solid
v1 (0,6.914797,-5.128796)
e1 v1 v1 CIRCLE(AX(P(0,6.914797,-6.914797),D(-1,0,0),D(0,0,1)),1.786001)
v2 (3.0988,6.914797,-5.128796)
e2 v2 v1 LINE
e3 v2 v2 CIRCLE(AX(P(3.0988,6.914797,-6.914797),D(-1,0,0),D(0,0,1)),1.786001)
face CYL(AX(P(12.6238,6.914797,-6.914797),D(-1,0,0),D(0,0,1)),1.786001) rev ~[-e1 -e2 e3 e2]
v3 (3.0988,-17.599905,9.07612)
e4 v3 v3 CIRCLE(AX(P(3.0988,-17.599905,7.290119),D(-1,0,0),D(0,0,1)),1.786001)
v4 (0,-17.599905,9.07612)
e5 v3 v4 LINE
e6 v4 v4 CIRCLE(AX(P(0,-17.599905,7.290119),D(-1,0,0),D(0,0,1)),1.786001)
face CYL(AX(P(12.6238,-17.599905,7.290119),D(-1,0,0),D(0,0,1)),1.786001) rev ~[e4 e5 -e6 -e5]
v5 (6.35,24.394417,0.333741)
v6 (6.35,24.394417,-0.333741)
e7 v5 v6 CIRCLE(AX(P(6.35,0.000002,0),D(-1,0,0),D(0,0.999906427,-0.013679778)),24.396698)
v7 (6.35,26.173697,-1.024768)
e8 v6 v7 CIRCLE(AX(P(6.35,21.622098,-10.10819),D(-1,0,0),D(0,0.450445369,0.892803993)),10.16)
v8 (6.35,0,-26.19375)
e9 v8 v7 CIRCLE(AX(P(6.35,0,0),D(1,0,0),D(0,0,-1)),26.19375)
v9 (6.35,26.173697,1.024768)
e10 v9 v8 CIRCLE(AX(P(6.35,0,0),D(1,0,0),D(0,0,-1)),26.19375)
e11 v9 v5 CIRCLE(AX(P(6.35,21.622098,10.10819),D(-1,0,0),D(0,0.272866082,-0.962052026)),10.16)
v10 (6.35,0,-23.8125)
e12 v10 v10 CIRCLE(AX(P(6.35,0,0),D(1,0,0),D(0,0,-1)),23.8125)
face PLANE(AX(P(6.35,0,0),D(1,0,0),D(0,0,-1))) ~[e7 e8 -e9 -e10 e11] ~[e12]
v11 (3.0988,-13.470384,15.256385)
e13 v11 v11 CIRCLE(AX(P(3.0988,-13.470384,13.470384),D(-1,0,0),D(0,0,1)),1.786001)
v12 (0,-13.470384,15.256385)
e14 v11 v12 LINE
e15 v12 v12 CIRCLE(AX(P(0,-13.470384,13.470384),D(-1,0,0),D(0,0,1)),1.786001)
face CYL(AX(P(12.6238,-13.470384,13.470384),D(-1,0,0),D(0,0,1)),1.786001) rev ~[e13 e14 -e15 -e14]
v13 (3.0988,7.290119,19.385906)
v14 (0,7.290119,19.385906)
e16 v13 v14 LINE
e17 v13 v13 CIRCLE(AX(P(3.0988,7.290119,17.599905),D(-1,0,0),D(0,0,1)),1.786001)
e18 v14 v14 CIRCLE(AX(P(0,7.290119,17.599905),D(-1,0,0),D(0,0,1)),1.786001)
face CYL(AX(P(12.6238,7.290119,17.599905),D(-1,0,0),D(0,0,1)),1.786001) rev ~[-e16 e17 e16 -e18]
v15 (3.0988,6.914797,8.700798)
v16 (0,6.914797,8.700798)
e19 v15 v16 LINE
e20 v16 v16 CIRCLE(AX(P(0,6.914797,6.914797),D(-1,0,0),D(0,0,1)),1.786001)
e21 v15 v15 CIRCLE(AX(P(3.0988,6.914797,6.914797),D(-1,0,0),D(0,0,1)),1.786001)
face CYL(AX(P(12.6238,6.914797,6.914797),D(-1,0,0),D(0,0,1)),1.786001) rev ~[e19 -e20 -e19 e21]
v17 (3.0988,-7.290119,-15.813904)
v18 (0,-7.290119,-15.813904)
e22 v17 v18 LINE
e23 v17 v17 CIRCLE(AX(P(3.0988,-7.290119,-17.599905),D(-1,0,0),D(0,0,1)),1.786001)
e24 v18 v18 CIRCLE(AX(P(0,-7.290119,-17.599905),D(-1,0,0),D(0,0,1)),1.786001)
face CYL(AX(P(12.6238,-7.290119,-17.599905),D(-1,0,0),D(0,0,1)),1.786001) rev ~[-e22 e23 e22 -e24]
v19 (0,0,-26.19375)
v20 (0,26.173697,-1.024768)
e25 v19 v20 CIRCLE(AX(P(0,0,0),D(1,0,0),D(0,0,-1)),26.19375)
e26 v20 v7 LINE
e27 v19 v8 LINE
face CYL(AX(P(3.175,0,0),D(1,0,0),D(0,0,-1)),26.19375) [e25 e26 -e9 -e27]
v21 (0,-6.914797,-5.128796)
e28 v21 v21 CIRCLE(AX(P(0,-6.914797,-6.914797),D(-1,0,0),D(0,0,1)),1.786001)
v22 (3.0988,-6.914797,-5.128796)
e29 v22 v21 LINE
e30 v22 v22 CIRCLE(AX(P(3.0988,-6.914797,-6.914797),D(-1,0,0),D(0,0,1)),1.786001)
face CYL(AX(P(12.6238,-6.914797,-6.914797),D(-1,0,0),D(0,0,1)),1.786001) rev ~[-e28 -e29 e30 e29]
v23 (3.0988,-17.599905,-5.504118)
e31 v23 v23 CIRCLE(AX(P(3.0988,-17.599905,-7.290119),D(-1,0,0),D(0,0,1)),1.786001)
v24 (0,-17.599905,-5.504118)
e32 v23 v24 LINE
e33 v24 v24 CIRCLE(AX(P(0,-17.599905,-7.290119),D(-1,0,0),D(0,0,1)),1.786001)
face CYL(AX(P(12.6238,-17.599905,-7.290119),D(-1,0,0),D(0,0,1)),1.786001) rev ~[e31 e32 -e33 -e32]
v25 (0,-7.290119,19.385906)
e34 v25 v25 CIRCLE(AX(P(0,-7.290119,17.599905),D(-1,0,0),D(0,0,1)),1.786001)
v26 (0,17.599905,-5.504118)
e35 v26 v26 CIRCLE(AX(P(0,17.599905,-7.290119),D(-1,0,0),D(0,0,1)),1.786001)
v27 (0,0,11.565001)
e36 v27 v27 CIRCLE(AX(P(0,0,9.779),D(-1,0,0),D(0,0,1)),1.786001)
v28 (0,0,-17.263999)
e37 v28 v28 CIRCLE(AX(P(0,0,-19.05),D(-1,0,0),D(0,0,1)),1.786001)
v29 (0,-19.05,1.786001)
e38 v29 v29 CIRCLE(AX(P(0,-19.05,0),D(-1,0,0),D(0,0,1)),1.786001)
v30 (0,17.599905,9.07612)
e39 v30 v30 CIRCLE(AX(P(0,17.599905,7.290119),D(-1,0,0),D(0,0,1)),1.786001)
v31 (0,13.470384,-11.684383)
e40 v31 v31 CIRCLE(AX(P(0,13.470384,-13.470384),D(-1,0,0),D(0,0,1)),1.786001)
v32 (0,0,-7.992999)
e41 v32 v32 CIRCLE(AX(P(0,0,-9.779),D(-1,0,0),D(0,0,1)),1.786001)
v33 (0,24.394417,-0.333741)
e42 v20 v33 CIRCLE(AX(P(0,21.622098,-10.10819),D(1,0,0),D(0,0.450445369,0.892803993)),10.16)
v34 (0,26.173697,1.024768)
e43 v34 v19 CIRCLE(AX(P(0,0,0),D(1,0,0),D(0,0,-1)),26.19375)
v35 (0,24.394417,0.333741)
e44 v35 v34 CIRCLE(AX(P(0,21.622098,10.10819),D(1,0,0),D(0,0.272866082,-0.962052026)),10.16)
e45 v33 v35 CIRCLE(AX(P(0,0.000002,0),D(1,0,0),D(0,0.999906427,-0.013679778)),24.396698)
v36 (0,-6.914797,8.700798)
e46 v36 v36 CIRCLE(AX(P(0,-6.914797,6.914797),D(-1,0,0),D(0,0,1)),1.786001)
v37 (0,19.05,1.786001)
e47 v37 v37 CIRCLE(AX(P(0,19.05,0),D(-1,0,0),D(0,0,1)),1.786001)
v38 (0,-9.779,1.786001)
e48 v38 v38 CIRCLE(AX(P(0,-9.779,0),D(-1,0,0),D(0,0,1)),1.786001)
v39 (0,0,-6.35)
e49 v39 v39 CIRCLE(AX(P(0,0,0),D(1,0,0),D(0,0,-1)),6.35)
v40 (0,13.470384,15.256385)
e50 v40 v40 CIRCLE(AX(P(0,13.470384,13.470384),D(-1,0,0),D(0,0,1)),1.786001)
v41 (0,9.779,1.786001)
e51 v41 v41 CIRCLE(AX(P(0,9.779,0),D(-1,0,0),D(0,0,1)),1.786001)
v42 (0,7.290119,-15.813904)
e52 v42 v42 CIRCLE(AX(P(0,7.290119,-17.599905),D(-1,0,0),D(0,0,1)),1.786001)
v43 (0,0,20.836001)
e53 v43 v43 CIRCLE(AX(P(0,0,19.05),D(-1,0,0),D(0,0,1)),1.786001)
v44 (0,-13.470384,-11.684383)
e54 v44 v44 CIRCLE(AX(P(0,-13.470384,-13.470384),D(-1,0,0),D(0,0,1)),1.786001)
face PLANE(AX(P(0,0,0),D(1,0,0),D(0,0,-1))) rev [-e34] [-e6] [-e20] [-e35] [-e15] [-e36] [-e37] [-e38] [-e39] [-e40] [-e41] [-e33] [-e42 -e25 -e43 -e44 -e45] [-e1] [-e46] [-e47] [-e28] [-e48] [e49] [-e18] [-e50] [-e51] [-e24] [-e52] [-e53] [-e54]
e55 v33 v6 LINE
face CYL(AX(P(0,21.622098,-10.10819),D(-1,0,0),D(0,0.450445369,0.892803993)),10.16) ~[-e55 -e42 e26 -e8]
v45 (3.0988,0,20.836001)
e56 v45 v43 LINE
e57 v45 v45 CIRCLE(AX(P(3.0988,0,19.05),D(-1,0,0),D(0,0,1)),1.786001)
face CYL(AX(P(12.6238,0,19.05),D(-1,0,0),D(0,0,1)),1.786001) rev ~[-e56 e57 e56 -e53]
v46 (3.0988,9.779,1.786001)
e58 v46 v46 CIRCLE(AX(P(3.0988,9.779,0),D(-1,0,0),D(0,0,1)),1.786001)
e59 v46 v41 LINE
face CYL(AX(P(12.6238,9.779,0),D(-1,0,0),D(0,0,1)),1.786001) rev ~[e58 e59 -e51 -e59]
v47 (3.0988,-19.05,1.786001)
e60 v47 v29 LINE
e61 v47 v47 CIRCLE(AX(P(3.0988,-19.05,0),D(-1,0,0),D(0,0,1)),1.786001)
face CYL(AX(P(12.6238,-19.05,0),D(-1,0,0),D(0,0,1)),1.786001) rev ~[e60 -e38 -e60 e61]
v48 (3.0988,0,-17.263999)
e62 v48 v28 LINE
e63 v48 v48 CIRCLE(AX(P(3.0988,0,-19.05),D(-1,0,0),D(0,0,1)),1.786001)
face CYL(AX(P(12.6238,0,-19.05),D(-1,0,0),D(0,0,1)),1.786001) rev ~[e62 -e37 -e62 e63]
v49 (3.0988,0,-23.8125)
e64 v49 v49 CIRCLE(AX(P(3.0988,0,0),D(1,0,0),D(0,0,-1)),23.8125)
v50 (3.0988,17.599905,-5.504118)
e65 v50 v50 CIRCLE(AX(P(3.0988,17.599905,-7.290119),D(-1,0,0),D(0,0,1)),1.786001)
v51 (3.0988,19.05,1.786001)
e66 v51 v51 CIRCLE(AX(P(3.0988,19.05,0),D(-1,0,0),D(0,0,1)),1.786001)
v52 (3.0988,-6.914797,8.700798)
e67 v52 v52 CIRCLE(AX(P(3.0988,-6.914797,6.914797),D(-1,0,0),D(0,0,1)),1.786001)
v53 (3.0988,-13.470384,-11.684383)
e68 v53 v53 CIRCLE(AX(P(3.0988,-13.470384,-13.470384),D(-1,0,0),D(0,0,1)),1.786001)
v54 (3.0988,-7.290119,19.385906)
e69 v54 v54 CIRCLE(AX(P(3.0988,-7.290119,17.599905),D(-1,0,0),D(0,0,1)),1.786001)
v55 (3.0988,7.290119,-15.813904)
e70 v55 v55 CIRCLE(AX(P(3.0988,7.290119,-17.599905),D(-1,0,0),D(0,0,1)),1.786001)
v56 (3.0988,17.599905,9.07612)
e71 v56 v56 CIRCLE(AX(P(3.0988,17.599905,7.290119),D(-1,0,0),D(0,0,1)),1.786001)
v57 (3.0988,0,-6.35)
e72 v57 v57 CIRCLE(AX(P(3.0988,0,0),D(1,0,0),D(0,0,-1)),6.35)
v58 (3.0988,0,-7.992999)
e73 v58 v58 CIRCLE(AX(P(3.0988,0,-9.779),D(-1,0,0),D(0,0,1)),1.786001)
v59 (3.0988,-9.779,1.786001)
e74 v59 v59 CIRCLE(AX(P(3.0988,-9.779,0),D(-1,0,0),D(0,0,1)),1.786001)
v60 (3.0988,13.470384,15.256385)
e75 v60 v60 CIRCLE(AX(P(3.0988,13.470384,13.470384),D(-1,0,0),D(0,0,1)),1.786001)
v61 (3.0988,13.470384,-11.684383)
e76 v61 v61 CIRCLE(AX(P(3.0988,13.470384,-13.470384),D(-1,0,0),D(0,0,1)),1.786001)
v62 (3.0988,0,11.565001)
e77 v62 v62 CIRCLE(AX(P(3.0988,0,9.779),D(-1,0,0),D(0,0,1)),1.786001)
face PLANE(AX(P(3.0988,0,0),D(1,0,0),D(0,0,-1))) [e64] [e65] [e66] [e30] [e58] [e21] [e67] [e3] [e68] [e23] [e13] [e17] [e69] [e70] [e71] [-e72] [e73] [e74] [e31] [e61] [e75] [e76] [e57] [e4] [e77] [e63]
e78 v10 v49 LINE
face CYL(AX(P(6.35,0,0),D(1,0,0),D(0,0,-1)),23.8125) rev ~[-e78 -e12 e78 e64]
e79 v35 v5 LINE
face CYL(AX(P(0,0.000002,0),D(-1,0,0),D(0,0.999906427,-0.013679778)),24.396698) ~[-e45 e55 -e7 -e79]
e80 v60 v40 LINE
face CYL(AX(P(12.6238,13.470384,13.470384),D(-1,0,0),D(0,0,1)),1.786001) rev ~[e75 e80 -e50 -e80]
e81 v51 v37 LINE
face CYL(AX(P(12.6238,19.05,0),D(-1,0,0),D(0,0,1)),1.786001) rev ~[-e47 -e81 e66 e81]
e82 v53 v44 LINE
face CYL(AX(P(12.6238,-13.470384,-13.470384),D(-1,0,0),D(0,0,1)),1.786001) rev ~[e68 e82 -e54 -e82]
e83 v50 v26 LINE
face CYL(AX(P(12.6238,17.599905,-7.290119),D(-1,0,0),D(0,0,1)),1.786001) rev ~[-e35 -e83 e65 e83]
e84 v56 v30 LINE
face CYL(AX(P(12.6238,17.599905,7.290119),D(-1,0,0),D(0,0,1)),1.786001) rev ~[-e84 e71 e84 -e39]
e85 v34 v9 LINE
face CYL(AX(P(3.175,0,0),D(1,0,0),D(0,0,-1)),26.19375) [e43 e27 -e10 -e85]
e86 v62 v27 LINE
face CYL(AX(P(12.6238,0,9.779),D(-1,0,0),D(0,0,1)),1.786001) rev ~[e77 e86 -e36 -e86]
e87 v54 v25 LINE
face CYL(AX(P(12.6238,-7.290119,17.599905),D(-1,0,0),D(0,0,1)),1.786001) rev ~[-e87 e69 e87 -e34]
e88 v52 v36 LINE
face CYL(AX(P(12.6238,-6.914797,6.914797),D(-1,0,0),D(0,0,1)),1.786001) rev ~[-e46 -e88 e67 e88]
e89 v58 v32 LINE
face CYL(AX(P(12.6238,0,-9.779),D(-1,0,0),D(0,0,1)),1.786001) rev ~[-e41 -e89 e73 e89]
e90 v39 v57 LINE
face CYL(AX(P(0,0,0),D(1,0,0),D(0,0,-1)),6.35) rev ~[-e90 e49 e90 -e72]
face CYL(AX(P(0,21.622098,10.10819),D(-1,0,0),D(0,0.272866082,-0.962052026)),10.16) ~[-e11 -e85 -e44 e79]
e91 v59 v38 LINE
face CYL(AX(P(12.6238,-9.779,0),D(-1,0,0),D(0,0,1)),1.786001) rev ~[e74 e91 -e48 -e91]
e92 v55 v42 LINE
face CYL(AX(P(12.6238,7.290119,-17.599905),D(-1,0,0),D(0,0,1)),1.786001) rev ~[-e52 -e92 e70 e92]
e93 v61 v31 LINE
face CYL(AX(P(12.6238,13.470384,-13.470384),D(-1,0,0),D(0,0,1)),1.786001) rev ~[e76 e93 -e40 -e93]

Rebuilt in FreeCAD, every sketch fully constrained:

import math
import FreeCAD as App
import Part
import Sketcher
Q = App.Units.Quantity


def add_polygon(sketch, points):
    """Adds a closed chain of lines whose ends are joined by coincident constraints."""
    first, n = sketch.GeometryCount, len(points)
    for a, b in zip(points, points[1:] + points[:1]):
        sketch.addGeometry(Part.LineSegment(App.Vector(*a, 0), App.Vector(*b, 0)), False)
    for i in range(n):
        sketch.addConstraint(Sketcher.Constraint("Coincident", first + i, 2, first + (i + 1) % n, 1))

doc = App.newDocument("Part")
params = doc.addObject("Spreadsheet::Sheet", "Params")
for row, (alias, value) in enumerate([
    ("sketch1_width", "0.25 in"),
    ("sketch1_height", "1.03125 in"),
    ("revolution_angle", "360 deg"),
    ("sketch2_radius", "0.4 in"),
    ("sketch3_diameter", "0.5 in"),
    ("pocket2_length", "101.600102 mm"),
    ("sketch4_diameter", "1.875 in"),
    ("pocket3_length", "0.128 in"),
    ("hole_diameter", "3.572002 mm"),
    ("hole_depth", "0.375 in"),
], start=1):
    params.set(f"A{row}", alias)
    params.set(f"B{row}", "=" + value)
    params.setAlias(f"B{row}", alias)

body = doc.addObject("PartDesign::Body", "Body")

# Sketch on XZ plane
sketch1 = doc.addObject("Sketcher::SketchObject", "Sketch")
body.addObject(sketch1)
sketch1.AttachmentSupport = (doc.XZ_Plane, [""])
sketch1.MapMode = "FlatFace"
add_polygon(sketch1, [(0, -26), (0, 0), (6, 0), (6, -26)])  # lines 0-3
sketch1.addConstraint([
    Sketcher.Constraint("Vertical", 0),
    Sketcher.Constraint("Horizontal", 1),
    Sketcher.Constraint("Vertical", 2),
    Sketcher.Constraint("Horizontal", 3),
    Sketcher.Constraint("Coincident", 0, 2, -1, 1),
    Sketcher.Constraint("DistanceX", 1, 1, 1, 2, Q("0.25 in")),
    Sketcher.Constraint("DistanceY", 0, 1, 0, 2, Q("1.03125 in")),
])
sketch1.setExpression("Constraints[9]", "Params.sketch1_width")
sketch1.setExpression("Constraints[10]", "Params.sketch1_height")
revolution = doc.addObject("PartDesign::Revolution", "Revolution")
body.addObject(revolution)
revolution.Profile = sketch1
revolution.ReferenceAxis = (sketch1, ["H_Axis"])
revolution.setExpression("Angle", "Params.revolution_angle")

# Sketch on YZ plane
sketch2 = doc.addObject("Sketcher::SketchObject", "Sketch001")
body.addObject(sketch2)
sketch2.AttachmentSupport = (doc.YZ_Plane, [""])
sketch2.MapMode = "FlatFace"
sketch2.addGeometry([
    Part.ArcOfCircle(Part.Circle(App.Vector(0, 0, 0), App.Vector(0, 0, 1), 24.4), math.radians(-0.78), math.radians(0.78)),
    Part.ArcOfCircle(Part.Circle(App.Vector(21.6, -10.1, 0), App.Vector(0, 0, 1), 10.2), math.radians(63.23), math.radians(74.17)),
    Part.ArcOfCircle(Part.Circle(App.Vector(0, 0, 0), App.Vector(0, 0, 1), 26.2), math.radians(-2.27), math.radians(2.27)),
    Part.ArcOfCircle(Part.Circle(App.Vector(21.6, 10.1, 0), App.Vector(0, 0, 1), 10.2), math.radians(-74.17), math.radians(-63.23)),
], False)
sketch2.addConstraint([
    Sketcher.Constraint("Coincident", 0, 1, 1, 2),
    Sketcher.Constraint("Coincident", 1, 1, 2, 1),
    Sketcher.Constraint("Coincident", 2, 2, 3, 2),
    Sketcher.Constraint("Coincident", 3, 1, 0, 2),
    Sketcher.Constraint("Coincident", 0, 3, -1, 1),
    Sketcher.Constraint("Coincident", 2, 3, -1, 1),
    Sketcher.Constraint("Equal", 1, 3),
    Sketcher.Constraint("Symmetric", 1, 3, 3, 3, -1),
    Sketcher.Constraint("Radius", 1, Q("0.4 in")),
    Sketcher.Constraint("Radius", 0, Q("0.9604999 in")),
    Sketcher.Constraint("Radius", 2, Q("26.21915 mm")),
    Sketcher.Constraint("DistanceY", 1, 1, -1, 1, Q("1.037301 mm")),
    Sketcher.Constraint("DistanceY", 1, 3, -1, 1, Q("10.10819 mm")),
])
sketch2.setExpression("Constraints[8]", "Params.sketch2_radius")
pocket1 = doc.addObject("PartDesign::Pocket", "Pocket")
body.addObject(pocket1)
pocket1.Profile = sketch2
pocket1.Type = "ThroughAll"
pocket1.Reversed = True

# Sketch on YZ plane
sketch3 = doc.addObject("Sketcher::SketchObject", "Sketch002")
body.addObject(sketch3)
sketch3.AttachmentSupport = (doc.YZ_Plane, [""])
sketch3.MapMode = "FlatFace"
sketch3.addGeometry(Part.Circle(App.Vector(0, 0, 0), App.Vector(0, 0, 1), 6), False)
sketch3.addConstraint([
    Sketcher.Constraint("Coincident", 0, 3, -1, 1),
    Sketcher.Constraint("Diameter", 0, Q("0.5 in")),
])
sketch3.setExpression("Constraints[1]", "Params.sketch3_diameter")
pocket2 = doc.addObject("PartDesign::Pocket", "Pocket001")
body.addObject(pocket2)
pocket2.Profile = sketch3
pocket2.setExpression("Length", "Params.pocket2_length")
pocket2.Midplane = True

# Sketch on YZ plane
sketch4 = doc.addObject("Sketcher::SketchObject", "Sketch003")
body.addObject(sketch4)
sketch4.AttachmentSupport = (doc.YZ_Plane, [""])
sketch4.MapMode = "FlatFace"
sketch4.AttachmentOffset = App.Placement(App.Vector(0, 0, 0.25 * 25.4), App.Rotation())
sketch4.addGeometry(Part.Circle(App.Vector(0, 0, 0), App.Vector(0, 0, 1), 24), False)
sketch4.addConstraint([
    Sketcher.Constraint("Coincident", 0, 3, -1, 1),
    Sketcher.Constraint("Diameter", 0, Q("1.875 in")),
])
sketch4.setExpression("Constraints[1]", "Params.sketch4_diameter")
pocket3 = doc.addObject("PartDesign::Pocket", "Pocket002")
body.addObject(pocket3)
pocket3.Profile = sketch4
pocket3.setExpression("Length", "Params.pocket3_length")

# Sketch on YZ plane
sketch5 = doc.addObject("Sketcher::SketchObject", "Sketch004")
body.addObject(sketch5)
sketch5.AttachmentSupport = (doc.YZ_Plane, [""])
sketch5.MapMode = "FlatFace"
sketch5.AttachmentOffset = App.Placement(App.Vector(0, 0, 0.122 * 25.4), App.Rotation())
sketch5.addGeometry([
    Part.Circle(App.Vector(9.8, 0, 0), App.Vector(0, 0, 1), 1.8),  # 0
    Part.Circle(App.Vector(19.1, 0, 0), App.Vector(0, 0, 1), 1.8),  # 1
    Part.Circle(App.Vector(17.6, -7.3, 0), App.Vector(0, 0, 1), 1.8),  # 2
    Part.Circle(App.Vector(13.5, -13.5, 0), App.Vector(0, 0, 1), 1.8),  # 3
    Part.Circle(App.Vector(7.3, -17.6, 0), App.Vector(0, 0, 1), 1.8),  # 4
    Part.Circle(App.Vector(0, -19.1, 0), App.Vector(0, 0, 1), 1.8),  # 5
    Part.Circle(App.Vector(-7.3, -17.6, 0), App.Vector(0, 0, 1), 1.8),  # 6
    Part.Circle(App.Vector(-13.5, -13.5, 0), App.Vector(0, 0, 1), 1.8),  # 7
    Part.Circle(App.Vector(-17.6, -7.3, 0), App.Vector(0, 0, 1), 1.8),  # 8
    Part.Circle(App.Vector(-19.1, 0, 0), App.Vector(0, 0, 1), 1.8),  # 9
    Part.Circle(App.Vector(-17.6, 7.3, 0), App.Vector(0, 0, 1), 1.8),  # 10
    Part.Circle(App.Vector(-13.5, 13.5, 0), App.Vector(0, 0, 1), 1.8),  # 11
    Part.Circle(App.Vector(-7.3, 17.6, 0), App.Vector(0, 0, 1), 1.8),  # 12
    Part.Circle(App.Vector(0, 19.1, 0), App.Vector(0, 0, 1), 1.8),  # 13
    Part.Circle(App.Vector(7.3, 17.6, 0), App.Vector(0, 0, 1), 1.8),  # 14
    Part.Circle(App.Vector(13.5, 13.5, 0), App.Vector(0, 0, 1), 1.8),  # 15
    Part.Circle(App.Vector(17.6, 7.3, 0), App.Vector(0, 0, 1), 1.8),  # 16
    Part.Circle(App.Vector(6.9, -6.9, 0), App.Vector(0, 0, 1), 1.8),  # 17
    Part.Circle(App.Vector(0, -9.8, 0), App.Vector(0, 0, 1), 1.8),  # 18
    Part.Circle(App.Vector(-6.9, -6.9, 0), App.Vector(0, 0, 1), 1.8),  # 19
    Part.Circle(App.Vector(-9.8, 0, 0), App.Vector(0, 0, 1), 1.8),  # 20
    Part.Circle(App.Vector(-6.9, 6.9, 0), App.Vector(0, 0, 1), 1.8),  # 21
    Part.Circle(App.Vector(0, 9.8, 0), App.Vector(0, 0, 1), 1.8),  # 22
    Part.Circle(App.Vector(6.9, 6.9, 0), App.Vector(0, 0, 1), 1.8),  # 23
], False)
sketch5.addConstraint([
    Sketcher.Constraint("Equal", 0, 1),
    Sketcher.Constraint("Equal", 1, 2),
    Sketcher.Constraint("Equal", 2, 3),
    Sketcher.Constraint("Equal", 3, 4),
    Sketcher.Constraint("Equal", 4, 5),
    Sketcher.Constraint("Equal", 5, 6),
    Sketcher.Constraint("Equal", 6, 7),
    Sketcher.Constraint("Equal", 7, 8),
    Sketcher.Constraint("Equal", 8, 9),
    Sketcher.Constraint("Equal", 9, 10),
    Sketcher.Constraint("Equal", 10, 11),
    Sketcher.Constraint("Equal", 11, 12),
    Sketcher.Constraint("Equal", 12, 13),
    Sketcher.Constraint("Equal", 13, 14),
    Sketcher.Constraint("Equal", 14, 15),
    Sketcher.Constraint("Equal", 15, 16),
    Sketcher.Constraint("Equal", 16, 17),
    Sketcher.Constraint("Equal", 17, 18),
    Sketcher.Constraint("Equal", 18, 19),
    Sketcher.Constraint("Equal", 19, 20),
    Sketcher.Constraint("Equal", 20, 21),
    Sketcher.Constraint("Equal", 21, 22),
    Sketcher.Constraint("Equal", 22, 23),
    Sketcher.Constraint("Symmetric", 1, 3, 9, 3, -1, 1),
    Sketcher.Constraint("Symmetric", 2, 3, 10, 3, -1, 1),
    Sketcher.Constraint("Symmetric", 3, 3, 11, 3, -1, 1),
    Sketcher.Constraint("Symmetric", 4, 3, 12, 3, -1, 1),
    Sketcher.Constraint("Symmetric", 5, 3, 13, 3, -1, 1),
    Sketcher.Constraint("Symmetric", 6, 3, 14, 3, -1, 1),
    Sketcher.Constraint("Symmetric", 7, 3, 15, 3, -1, 1),
    Sketcher.Constraint("Symmetric", 8, 3, 16, 3, -1, 1),
    Sketcher.Constraint("Symmetric", 0, 3, 20, 3, -1, 1),
    Sketcher.Constraint("Symmetric", 17, 3, 21, 3, -1, 1),
    Sketcher.Constraint("Symmetric", 18, 3, 22, 3, -1, 1),
    Sketcher.Constraint("Symmetric", 19, 3, 23, 3, -1, 1),
    Sketcher.Constraint("Symmetric", 4, 3, 6, 3, -2),
    Sketcher.Constraint("Symmetric", 3, 3, 7, 3, -2),
    Sketcher.Constraint("Symmetric", 2, 3, 8, 3, -2),
    Sketcher.Constraint("Symmetric", 17, 3, 19, 3, -2),
    Sketcher.Constraint("PointOnObject", 0, 3, -1),
    Sketcher.Constraint("PointOnObject", 1, 3, -1),
    Sketcher.Constraint("PointOnObject", 5, 3, -2),
    Sketcher.Constraint("PointOnObject", 18, 3, -2),
    Sketcher.Constraint("Diameter", 0, Q("3.572002 mm")),
    Sketcher.Constraint("DistanceX", -1, 1, 1, 3, Q("0.75 in")),
    Sketcher.Constraint("DistanceY", 5, 3, -1, 1, Q("0.75 in")),
    Sketcher.Constraint("DistanceX", -1, 1, 0, 3, Q("0.385 in")),
    Sketcher.Constraint("DistanceY", 18, 3, -1, 1, Q("0.385 in")),
    Sketcher.Constraint("DistanceY", 2, 3, -1, 1, Q("7.290119 mm")),
    Sketcher.Constraint("DistanceX", -1, 1, 4, 3, Q("7.290119 mm")),
    Sketcher.Constraint("DistanceX", 3, 3, 2, 3, Q("4.129521 mm")),
    Sketcher.Constraint("DistanceY", 4, 3, 3, 3, Q("4.129521 mm")),
    Sketcher.Constraint("DistanceX", 7, 3, 3, 3, Q("26.940768 mm")),
    Sketcher.Constraint("DistanceY", 7, 3, 11, 3, Q("26.940768 mm")),
    Sketcher.Constraint("DistanceX", -1, 1, 17, 3, Q("6.914797 mm")),
    Sketcher.Constraint("DistanceY", 17, 3, -1, 1, Q("6.914797 mm")),
])
doc.recompute()
hole = doc.addObject("PartDesign::Hole", "Hole")
body.addObject(hole)
hole.Profile = sketch5
hole.ThreadType = "None"
hole.setExpression("Diameter", "Params.hole_diameter")
hole.DepthType = "Dimension"
hole.setExpression("Depth", "Params.hole_depth")
hole.DrillPoint = "Angled"
hole.DrillPointAngle = 118

doc.recompute()
